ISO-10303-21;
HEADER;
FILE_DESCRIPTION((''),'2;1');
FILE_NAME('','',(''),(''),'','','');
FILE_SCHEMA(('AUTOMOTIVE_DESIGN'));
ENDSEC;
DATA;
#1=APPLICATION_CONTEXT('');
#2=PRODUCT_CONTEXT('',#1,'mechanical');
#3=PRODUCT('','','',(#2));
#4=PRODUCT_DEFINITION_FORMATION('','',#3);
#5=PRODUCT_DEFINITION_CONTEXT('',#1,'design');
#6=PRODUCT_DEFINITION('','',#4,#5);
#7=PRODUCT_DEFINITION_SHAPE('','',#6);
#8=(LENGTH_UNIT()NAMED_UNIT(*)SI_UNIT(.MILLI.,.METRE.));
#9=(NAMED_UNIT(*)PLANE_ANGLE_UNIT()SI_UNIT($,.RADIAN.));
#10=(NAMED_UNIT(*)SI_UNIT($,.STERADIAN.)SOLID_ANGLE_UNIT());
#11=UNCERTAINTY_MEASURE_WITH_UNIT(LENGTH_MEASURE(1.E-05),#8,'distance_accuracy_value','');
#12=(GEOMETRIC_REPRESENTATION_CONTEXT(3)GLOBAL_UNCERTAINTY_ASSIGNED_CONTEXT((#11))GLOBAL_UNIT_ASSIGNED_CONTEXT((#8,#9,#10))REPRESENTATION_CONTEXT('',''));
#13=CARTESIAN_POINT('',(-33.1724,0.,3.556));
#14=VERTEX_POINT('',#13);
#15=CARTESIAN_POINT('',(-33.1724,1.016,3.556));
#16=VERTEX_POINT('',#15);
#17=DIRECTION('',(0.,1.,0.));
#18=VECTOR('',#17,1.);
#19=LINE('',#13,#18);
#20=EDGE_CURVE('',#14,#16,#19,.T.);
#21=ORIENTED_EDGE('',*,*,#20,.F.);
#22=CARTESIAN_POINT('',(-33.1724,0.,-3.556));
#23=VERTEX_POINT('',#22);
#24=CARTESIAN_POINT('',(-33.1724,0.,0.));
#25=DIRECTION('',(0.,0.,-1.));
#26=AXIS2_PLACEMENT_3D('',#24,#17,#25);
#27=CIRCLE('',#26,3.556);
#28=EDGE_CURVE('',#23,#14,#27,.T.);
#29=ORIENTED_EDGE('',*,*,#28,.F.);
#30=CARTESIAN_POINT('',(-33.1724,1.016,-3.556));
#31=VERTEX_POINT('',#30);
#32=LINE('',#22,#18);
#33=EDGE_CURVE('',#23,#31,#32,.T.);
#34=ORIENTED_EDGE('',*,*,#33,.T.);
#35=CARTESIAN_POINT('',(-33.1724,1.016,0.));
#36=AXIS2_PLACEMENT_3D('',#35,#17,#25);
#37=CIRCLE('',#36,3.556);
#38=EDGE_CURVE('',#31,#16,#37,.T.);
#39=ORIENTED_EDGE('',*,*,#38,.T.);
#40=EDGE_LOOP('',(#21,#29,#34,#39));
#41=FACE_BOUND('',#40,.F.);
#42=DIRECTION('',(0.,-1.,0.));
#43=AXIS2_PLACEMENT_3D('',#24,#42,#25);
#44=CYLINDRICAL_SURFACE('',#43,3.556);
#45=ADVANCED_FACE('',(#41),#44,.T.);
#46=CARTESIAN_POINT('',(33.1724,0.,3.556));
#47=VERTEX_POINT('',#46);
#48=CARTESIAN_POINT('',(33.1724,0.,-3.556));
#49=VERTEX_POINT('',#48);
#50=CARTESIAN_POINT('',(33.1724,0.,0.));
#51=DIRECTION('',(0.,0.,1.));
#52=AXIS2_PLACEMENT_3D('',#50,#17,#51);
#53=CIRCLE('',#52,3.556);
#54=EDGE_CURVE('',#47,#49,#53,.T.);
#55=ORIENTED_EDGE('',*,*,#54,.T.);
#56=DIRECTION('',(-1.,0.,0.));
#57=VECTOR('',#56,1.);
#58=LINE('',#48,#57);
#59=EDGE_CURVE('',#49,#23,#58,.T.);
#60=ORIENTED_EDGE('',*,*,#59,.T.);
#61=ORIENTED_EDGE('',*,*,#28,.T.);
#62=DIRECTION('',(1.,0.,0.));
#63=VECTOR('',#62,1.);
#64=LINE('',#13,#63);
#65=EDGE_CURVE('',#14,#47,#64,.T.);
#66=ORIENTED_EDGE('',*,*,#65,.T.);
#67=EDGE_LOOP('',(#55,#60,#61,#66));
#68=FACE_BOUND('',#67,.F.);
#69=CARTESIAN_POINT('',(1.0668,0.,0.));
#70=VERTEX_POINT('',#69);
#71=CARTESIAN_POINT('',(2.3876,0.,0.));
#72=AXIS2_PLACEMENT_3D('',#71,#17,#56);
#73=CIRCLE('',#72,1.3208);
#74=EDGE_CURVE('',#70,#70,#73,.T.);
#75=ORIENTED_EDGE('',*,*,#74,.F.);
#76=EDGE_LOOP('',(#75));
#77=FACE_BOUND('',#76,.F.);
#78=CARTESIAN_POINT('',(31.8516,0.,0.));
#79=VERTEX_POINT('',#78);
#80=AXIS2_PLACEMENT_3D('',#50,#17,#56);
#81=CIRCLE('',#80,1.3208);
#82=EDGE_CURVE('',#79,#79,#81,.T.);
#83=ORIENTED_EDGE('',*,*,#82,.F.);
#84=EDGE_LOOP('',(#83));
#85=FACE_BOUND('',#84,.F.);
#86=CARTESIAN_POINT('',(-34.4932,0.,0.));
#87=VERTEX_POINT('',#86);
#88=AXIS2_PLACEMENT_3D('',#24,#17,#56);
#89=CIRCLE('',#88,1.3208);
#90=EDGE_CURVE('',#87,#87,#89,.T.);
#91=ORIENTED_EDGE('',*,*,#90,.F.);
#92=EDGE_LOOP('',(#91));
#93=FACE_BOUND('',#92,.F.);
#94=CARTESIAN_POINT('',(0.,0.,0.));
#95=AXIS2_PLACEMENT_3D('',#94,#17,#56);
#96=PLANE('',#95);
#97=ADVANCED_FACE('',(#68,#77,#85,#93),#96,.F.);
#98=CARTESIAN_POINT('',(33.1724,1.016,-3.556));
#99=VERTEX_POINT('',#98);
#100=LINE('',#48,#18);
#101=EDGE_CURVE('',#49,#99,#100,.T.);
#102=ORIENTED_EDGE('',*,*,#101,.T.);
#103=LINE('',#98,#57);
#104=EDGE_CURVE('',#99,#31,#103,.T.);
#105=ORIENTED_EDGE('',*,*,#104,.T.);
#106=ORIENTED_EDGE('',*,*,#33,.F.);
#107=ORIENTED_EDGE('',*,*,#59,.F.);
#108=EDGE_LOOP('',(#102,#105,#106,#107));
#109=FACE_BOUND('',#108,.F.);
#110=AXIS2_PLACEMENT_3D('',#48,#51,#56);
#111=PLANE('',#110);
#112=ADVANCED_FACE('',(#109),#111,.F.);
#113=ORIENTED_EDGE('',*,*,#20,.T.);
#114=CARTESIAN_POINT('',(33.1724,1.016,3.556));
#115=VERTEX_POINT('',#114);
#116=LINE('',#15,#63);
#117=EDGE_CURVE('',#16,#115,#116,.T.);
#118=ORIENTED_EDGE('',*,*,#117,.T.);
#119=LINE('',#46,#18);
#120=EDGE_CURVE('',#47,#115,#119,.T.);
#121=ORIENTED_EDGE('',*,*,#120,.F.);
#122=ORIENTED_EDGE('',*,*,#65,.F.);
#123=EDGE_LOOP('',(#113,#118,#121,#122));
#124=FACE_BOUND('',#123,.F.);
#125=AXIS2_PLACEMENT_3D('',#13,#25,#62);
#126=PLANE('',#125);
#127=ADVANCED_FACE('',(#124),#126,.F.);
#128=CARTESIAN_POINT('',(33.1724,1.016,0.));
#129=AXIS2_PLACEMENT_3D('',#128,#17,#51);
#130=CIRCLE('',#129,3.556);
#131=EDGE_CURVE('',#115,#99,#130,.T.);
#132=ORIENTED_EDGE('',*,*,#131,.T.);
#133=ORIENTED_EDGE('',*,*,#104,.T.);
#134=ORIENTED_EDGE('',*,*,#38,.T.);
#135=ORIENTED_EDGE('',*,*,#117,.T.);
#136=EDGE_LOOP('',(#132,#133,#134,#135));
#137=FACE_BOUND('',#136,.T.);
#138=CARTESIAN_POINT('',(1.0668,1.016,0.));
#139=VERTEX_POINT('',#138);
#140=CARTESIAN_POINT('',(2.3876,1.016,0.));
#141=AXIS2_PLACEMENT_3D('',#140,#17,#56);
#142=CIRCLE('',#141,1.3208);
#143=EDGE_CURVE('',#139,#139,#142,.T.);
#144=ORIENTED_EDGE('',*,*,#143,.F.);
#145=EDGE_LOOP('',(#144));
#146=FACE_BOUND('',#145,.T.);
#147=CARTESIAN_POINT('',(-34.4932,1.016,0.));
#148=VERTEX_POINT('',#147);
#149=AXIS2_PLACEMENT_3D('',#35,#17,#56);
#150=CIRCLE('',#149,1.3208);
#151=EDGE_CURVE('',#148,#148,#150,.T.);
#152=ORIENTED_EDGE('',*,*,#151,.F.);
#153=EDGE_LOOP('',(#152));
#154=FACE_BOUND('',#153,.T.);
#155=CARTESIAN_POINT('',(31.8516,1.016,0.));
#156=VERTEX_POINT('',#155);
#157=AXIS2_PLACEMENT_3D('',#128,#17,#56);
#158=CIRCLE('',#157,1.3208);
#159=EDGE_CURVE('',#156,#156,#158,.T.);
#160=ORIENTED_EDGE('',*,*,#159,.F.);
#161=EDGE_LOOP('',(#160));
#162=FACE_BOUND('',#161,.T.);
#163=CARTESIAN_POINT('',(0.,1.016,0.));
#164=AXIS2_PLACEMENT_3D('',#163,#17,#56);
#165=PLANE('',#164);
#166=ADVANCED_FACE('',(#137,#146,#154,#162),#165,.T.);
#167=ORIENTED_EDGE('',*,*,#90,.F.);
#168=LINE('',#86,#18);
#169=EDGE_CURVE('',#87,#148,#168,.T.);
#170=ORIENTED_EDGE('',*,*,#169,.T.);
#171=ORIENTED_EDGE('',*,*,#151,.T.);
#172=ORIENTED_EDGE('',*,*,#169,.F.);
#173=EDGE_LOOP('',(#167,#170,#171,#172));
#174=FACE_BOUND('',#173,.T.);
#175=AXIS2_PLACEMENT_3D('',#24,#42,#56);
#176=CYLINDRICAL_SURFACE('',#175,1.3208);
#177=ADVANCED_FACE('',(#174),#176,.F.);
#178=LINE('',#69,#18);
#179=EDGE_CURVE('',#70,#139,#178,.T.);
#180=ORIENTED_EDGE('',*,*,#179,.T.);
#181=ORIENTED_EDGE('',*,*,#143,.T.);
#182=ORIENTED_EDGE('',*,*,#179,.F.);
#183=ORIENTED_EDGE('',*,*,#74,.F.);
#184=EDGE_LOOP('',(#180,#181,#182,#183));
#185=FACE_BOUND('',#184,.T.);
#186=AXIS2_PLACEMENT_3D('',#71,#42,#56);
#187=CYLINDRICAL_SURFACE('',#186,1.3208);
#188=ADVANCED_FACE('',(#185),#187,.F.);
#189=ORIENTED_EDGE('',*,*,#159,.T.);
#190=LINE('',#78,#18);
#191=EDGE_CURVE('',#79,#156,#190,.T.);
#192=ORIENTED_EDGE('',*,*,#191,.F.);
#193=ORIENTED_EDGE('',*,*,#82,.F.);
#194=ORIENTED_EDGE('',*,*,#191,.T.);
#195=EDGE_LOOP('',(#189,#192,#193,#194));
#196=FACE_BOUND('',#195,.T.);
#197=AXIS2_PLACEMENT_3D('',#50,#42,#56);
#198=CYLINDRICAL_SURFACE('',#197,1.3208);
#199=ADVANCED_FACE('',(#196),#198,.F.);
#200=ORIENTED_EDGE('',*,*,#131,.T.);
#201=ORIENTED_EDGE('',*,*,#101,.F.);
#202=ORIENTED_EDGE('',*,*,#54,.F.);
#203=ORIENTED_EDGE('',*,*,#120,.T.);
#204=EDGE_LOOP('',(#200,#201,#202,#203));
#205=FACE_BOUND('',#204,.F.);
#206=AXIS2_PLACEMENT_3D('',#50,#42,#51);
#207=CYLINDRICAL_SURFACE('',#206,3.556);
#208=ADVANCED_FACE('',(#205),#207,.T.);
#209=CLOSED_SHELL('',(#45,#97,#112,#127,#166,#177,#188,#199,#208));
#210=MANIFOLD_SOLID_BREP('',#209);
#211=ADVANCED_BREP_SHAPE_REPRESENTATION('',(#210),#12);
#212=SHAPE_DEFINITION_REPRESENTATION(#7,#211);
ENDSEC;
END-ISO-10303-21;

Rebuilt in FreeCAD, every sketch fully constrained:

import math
import FreeCAD as App
import Part
import Sketcher
from FreeCAD import Vector
Q = App.Units.Quantity

doc = App.newDocument("Part")
body = doc.addObject("PartDesign::Body", "Body")

sketch1 = body.newObject("Sketcher::SketchObject", "Sketch")
sketch1.AttachmentSupport = (doc.getObject("XZ_Plane"), [""])
sketch1.MapMode = "FlatFace"
sketch1.addGeometry(Part.ArcOfCircle(Part.Circle(Vector(-33.1724, 0, 0), Vector(0, 0, 1), 3.556), math.radians(90), math.radians(270)), False)
sketch1.addGeometry(Part.LineSegment(Vector(-33.1724, 3.556, 0), Vector(33.1724, 3.556, 0)), False)
sketch1.addGeometry(Part.ArcOfCircle(Part.Circle(Vector(33.1724, 0, 0), Vector(0, 0, 1), 3.556), math.radians(-90), math.radians(90)), False)
sketch1.addGeometry(Part.LineSegment(Vector(33.1724, -3.556, 0), Vector(-33.1724, -3.556, 0)), False)
sketch1.addGeometry(Part.Circle(Vector(33.1724, 0, 0), Vector(0, 0, 1), 1.3208), False)
sketch1.addGeometry(Part.Circle(Vector(2.3876, 0, 0), Vector(0, 0, 1), 1.3208), False)
sketch1.addGeometry(Part.Circle(Vector(-33.1724, 0, 0), Vector(0, 0, 1), 1.3208), False)
sketch1.addConstraint(Sketcher.Constraint("Tangent", 0, 1, 1, 1))
sketch1.addConstraint(Sketcher.Constraint("Tangent", 1, 2, 2, 2))
sketch1.addConstraint(Sketcher.Constraint("Tangent", 2, 1, 3, 1))
sketch1.addConstraint(Sketcher.Constraint("Tangent", 3, 2, 0, 2))
sketch1.addConstraint(Sketcher.Constraint("Horizontal", 1))
sketch1.addConstraint(Sketcher.Constraint("Horizontal", 3))
sketch1.addConstraint(Sketcher.Constraint("Coincident", 4, 3, 2, 3))
sketch1.addConstraint(Sketcher.Constraint("Coincident", 6, 3, 0, 3))
sketch1.addConstraint(Sketcher.Constraint("Equal", 4, 5))
sketch1.addConstraint(Sketcher.Constraint("Equal", 5, 6))
sketch1.addConstraint(Sketcher.Constraint("Symmetric", 0, 3, 2, 3, -1, 1))
sketch1.addConstraint(Sketcher.Constraint("PointOnObject", 5, 3, -1))
sketch1.addConstraint(Sketcher.Constraint("Diameter", 4, Q("0.104 in")))
sketch1.addConstraint(Sketcher.Constraint("DistanceX", 0, 3, 5, 3, Q("1.4 in")))
sketch1.addConstraint(Sketcher.Constraint("Radius", 0, Q("0.14 in")))
sketch1.addConstraint(Sketcher.Constraint("DistanceX", 1, 1, 1, 2, Q("2.612 in")))
pad1 = body.newObject("PartDesign::Pad", "Pad")
pad1.Profile = sketch1
pad1.Length = Q("0.04 in")
pad1.Reversed = True

doc.recompute()
